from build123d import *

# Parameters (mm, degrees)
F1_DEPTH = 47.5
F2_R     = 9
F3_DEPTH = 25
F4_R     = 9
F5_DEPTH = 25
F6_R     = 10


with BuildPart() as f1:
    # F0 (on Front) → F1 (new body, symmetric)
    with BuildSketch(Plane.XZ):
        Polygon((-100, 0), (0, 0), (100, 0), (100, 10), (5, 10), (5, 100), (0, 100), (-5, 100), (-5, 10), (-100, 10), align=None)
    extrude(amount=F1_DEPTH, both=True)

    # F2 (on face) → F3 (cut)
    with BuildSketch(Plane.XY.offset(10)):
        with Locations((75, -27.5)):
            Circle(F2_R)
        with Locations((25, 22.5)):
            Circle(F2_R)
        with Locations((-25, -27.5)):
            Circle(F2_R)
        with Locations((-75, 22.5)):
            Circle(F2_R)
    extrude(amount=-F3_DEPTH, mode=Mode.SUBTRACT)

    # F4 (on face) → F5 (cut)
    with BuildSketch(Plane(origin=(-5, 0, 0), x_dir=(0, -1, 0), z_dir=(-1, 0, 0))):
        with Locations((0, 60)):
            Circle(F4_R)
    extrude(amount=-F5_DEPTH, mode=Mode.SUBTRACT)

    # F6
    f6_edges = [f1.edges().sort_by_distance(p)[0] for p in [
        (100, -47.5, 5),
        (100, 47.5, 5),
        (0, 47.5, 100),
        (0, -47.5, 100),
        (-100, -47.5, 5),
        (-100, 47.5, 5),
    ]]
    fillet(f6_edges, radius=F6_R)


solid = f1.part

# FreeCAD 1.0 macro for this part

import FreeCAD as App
import Part
import Sketcher
from FreeCAD import Vector


def edges_at(feature, points):
    """Names of the edges that pass closest to the given points."""
    edges = feature.Shape.Edges
    near = lambda p: min(range(len(edges)), key=lambda i: edges[i].distToShape(Part.Vertex(*p))[0])
    return sorted({f"Edge{near(p) + 1}" for p in points})


def add_polygon(sketch, points):
    """Adds a closed chain of lines whose ends are joined by coincident constraints."""
    first, n = sketch.GeometryCount, len(points)
    for a, b in zip(points, points[1:] + points[:1]):
        sketch.addGeometry(Part.LineSegment(App.Vector(*a, 0), App.Vector(*b, 0)), False)
    for i in range(n):
        sketch.addConstraint(Sketcher.Constraint("Coincident", first + i, 2, first + (i + 1) % n, 1))

doc = App.newDocument("Part")
body = doc.addObject("PartDesign::Body", "Body")

# Sketch on XZ plane
sketch1 = body.newObject("Sketcher::SketchObject", "Sketch")
sketch1.AttachmentSupport = (doc.getObject("XZ_Plane"), [""])
sketch1.MapMode = "FlatFace"
add_polygon(sketch1, [(-100, 0), (100, 0), (100, 10), (5, 10), (5, 100), (-5, 100), (-5, 10), (-100, 10)])  # lines 0-7
sketch1.addConstraint(Sketcher.Constraint("Horizontal", 0))
sketch1.addConstraint(Sketcher.Constraint("Vertical", 1))
sketch1.addConstraint(Sketcher.Constraint("Horizontal", 2))
sketch1.addConstraint(Sketcher.Constraint("Vertical", 3))
sketch1.addConstraint(Sketcher.Constraint("Horizontal", 4))
sketch1.addConstraint(Sketcher.Constraint("Vertical", 5))
sketch1.addConstraint(Sketcher.Constraint("Horizontal", 6))
sketch1.addConstraint(Sketcher.Constraint("Vertical", 7))
sketch1.addConstraint(Sketcher.Constraint("Symmetric", 0, 2, 7, 2, -1, 1))
sketch1.addConstraint(Sketcher.Constraint("Symmetric", 2, 2, 5, 2, -2))
sketch1.addConstraint(Sketcher.Constraint("Equal", 4, 1))
sketch1.addConstraint(Sketcher.Constraint("DistanceX", 0, 1, 0, 2, 200.0))
sketch1.addConstraint(Sketcher.Constraint("DistanceX", 2, 2, 2, 1, 95.0))
sketch1.addConstraint(Sketcher.Constraint("DistanceY", 3, 1, 3, 2, 90.0))
pad1 = body.newObject("PartDesign::Pad", "Pad")
pad1.Profile = sketch1
pad1.Length = 95
pad1.Midplane = True

# Sketch on XY plane
sketch2 = body.newObject("Sketcher::SketchObject", "Sketch001")
sketch2.AttachmentSupport = (doc.getObject("XY_Plane"), [""])
sketch2.MapMode = "FlatFace"
sketch2.AttachmentOffset = App.Placement(Vector(0, 0, 10), App.Rotation())
sketch2.addGeometry(Part.Circle(Vector(75, -28, 0), Vector(0, 0, 1), 9), False)
sketch2.addGeometry(Part.Circle(Vector(25, 22, 0), Vector(0, 0, 1), 9), False)
sketch2.addGeometry(Part.Circle(Vector(-25, -28, 0), Vector(0, 0, 1), 9), False)
sketch2.addGeometry(Part.Circle(Vector(-75, 22, 0), Vector(0, 0, 1), 9), False)
sketch2.addConstraint(Sketcher.Constraint("Equal", 0, 1))
sketch2.addConstraint(Sketcher.Constraint("Equal", 1, 2))
sketch2.addConstraint(Sketcher.Constraint("Equal", 2, 3))
sketch2.addConstraint(Sketcher.Constraint("Horizontal", 0, 3, 2, 3))
sketch2.addConstraint(Sketcher.Constraint("Horizontal", 1, 3, 3, 3))
sketch2.addConstraint(Sketcher.Constraint("Diameter", 0, 18.0))
sketch2.addConstraint(Sketcher.Constraint("DistanceX", -1, 1, 0, 3, 75.0))
sketch2.addConstraint(Sketcher.Constraint("DistanceX", -1, 1, 1, 3, 25.0))
sketch2.addConstraint(Sketcher.Constraint("DistanceX", 2, 3, -1, 1, 25.0))
sketch2.addConstraint(Sketcher.Constraint("DistanceX", 3, 3, -1, 1, 75.0))
sketch2.addConstraint(Sketcher.Constraint("DistanceY", 0, 3, 1, 3, 50.0))
sketch2.addConstraint(Sketcher.Constraint("DistanceY", 0, 3, -1, 1, 27.5))
pocket1 = body.newObject("PartDesign::Pocket", "Pocket")
pocket1.Profile = sketch2
pocket1.Length = 25

# Sketch on YZ plane
sketch3 = body.newObject("Sketcher::SketchObject", "Sketch002")
sketch3.AttachmentSupport = (doc.getObject("YZ_Plane"), [""])
sketch3.MapMode = "FlatFace"
sketch3.AttachmentOffset = App.Placement(Vector(0, 0, -5), App.Rotation())
sketch3.addGeometry(Part.Circle(Vector(0, 60, 0), Vector(0, 0, 1), 9), False)
sketch3.addConstraint(Sketcher.Constraint("PointOnObject", 0, 3, -2))
sketch3.addConstraint(Sketcher.Constraint("Diameter", 0, 18.0))
sketch3.addConstraint(Sketcher.Constraint("DistanceY", -1, 1, 0, 3, 60.0))
pocket2 = body.newObject("PartDesign::Pocket", "Pocket001")
pocket2.Profile = sketch3
pocket2.Length = 25
pocket2.Reversed = True
doc.recompute()

fillet = body.newObject("PartDesign::Fillet", "Fillet")
fillet.Base = (pocket2, edges_at(pocket2, [
    (100, -47.5, 5),
    (100, 47.5, 5),
    (0, 47.5, 100),
    (0, -47.5, 100),
    (-100, -47.5, 5),
    (-100, 47.5, 5),
]))
fillet.Radius = 10

doc.recompute()
